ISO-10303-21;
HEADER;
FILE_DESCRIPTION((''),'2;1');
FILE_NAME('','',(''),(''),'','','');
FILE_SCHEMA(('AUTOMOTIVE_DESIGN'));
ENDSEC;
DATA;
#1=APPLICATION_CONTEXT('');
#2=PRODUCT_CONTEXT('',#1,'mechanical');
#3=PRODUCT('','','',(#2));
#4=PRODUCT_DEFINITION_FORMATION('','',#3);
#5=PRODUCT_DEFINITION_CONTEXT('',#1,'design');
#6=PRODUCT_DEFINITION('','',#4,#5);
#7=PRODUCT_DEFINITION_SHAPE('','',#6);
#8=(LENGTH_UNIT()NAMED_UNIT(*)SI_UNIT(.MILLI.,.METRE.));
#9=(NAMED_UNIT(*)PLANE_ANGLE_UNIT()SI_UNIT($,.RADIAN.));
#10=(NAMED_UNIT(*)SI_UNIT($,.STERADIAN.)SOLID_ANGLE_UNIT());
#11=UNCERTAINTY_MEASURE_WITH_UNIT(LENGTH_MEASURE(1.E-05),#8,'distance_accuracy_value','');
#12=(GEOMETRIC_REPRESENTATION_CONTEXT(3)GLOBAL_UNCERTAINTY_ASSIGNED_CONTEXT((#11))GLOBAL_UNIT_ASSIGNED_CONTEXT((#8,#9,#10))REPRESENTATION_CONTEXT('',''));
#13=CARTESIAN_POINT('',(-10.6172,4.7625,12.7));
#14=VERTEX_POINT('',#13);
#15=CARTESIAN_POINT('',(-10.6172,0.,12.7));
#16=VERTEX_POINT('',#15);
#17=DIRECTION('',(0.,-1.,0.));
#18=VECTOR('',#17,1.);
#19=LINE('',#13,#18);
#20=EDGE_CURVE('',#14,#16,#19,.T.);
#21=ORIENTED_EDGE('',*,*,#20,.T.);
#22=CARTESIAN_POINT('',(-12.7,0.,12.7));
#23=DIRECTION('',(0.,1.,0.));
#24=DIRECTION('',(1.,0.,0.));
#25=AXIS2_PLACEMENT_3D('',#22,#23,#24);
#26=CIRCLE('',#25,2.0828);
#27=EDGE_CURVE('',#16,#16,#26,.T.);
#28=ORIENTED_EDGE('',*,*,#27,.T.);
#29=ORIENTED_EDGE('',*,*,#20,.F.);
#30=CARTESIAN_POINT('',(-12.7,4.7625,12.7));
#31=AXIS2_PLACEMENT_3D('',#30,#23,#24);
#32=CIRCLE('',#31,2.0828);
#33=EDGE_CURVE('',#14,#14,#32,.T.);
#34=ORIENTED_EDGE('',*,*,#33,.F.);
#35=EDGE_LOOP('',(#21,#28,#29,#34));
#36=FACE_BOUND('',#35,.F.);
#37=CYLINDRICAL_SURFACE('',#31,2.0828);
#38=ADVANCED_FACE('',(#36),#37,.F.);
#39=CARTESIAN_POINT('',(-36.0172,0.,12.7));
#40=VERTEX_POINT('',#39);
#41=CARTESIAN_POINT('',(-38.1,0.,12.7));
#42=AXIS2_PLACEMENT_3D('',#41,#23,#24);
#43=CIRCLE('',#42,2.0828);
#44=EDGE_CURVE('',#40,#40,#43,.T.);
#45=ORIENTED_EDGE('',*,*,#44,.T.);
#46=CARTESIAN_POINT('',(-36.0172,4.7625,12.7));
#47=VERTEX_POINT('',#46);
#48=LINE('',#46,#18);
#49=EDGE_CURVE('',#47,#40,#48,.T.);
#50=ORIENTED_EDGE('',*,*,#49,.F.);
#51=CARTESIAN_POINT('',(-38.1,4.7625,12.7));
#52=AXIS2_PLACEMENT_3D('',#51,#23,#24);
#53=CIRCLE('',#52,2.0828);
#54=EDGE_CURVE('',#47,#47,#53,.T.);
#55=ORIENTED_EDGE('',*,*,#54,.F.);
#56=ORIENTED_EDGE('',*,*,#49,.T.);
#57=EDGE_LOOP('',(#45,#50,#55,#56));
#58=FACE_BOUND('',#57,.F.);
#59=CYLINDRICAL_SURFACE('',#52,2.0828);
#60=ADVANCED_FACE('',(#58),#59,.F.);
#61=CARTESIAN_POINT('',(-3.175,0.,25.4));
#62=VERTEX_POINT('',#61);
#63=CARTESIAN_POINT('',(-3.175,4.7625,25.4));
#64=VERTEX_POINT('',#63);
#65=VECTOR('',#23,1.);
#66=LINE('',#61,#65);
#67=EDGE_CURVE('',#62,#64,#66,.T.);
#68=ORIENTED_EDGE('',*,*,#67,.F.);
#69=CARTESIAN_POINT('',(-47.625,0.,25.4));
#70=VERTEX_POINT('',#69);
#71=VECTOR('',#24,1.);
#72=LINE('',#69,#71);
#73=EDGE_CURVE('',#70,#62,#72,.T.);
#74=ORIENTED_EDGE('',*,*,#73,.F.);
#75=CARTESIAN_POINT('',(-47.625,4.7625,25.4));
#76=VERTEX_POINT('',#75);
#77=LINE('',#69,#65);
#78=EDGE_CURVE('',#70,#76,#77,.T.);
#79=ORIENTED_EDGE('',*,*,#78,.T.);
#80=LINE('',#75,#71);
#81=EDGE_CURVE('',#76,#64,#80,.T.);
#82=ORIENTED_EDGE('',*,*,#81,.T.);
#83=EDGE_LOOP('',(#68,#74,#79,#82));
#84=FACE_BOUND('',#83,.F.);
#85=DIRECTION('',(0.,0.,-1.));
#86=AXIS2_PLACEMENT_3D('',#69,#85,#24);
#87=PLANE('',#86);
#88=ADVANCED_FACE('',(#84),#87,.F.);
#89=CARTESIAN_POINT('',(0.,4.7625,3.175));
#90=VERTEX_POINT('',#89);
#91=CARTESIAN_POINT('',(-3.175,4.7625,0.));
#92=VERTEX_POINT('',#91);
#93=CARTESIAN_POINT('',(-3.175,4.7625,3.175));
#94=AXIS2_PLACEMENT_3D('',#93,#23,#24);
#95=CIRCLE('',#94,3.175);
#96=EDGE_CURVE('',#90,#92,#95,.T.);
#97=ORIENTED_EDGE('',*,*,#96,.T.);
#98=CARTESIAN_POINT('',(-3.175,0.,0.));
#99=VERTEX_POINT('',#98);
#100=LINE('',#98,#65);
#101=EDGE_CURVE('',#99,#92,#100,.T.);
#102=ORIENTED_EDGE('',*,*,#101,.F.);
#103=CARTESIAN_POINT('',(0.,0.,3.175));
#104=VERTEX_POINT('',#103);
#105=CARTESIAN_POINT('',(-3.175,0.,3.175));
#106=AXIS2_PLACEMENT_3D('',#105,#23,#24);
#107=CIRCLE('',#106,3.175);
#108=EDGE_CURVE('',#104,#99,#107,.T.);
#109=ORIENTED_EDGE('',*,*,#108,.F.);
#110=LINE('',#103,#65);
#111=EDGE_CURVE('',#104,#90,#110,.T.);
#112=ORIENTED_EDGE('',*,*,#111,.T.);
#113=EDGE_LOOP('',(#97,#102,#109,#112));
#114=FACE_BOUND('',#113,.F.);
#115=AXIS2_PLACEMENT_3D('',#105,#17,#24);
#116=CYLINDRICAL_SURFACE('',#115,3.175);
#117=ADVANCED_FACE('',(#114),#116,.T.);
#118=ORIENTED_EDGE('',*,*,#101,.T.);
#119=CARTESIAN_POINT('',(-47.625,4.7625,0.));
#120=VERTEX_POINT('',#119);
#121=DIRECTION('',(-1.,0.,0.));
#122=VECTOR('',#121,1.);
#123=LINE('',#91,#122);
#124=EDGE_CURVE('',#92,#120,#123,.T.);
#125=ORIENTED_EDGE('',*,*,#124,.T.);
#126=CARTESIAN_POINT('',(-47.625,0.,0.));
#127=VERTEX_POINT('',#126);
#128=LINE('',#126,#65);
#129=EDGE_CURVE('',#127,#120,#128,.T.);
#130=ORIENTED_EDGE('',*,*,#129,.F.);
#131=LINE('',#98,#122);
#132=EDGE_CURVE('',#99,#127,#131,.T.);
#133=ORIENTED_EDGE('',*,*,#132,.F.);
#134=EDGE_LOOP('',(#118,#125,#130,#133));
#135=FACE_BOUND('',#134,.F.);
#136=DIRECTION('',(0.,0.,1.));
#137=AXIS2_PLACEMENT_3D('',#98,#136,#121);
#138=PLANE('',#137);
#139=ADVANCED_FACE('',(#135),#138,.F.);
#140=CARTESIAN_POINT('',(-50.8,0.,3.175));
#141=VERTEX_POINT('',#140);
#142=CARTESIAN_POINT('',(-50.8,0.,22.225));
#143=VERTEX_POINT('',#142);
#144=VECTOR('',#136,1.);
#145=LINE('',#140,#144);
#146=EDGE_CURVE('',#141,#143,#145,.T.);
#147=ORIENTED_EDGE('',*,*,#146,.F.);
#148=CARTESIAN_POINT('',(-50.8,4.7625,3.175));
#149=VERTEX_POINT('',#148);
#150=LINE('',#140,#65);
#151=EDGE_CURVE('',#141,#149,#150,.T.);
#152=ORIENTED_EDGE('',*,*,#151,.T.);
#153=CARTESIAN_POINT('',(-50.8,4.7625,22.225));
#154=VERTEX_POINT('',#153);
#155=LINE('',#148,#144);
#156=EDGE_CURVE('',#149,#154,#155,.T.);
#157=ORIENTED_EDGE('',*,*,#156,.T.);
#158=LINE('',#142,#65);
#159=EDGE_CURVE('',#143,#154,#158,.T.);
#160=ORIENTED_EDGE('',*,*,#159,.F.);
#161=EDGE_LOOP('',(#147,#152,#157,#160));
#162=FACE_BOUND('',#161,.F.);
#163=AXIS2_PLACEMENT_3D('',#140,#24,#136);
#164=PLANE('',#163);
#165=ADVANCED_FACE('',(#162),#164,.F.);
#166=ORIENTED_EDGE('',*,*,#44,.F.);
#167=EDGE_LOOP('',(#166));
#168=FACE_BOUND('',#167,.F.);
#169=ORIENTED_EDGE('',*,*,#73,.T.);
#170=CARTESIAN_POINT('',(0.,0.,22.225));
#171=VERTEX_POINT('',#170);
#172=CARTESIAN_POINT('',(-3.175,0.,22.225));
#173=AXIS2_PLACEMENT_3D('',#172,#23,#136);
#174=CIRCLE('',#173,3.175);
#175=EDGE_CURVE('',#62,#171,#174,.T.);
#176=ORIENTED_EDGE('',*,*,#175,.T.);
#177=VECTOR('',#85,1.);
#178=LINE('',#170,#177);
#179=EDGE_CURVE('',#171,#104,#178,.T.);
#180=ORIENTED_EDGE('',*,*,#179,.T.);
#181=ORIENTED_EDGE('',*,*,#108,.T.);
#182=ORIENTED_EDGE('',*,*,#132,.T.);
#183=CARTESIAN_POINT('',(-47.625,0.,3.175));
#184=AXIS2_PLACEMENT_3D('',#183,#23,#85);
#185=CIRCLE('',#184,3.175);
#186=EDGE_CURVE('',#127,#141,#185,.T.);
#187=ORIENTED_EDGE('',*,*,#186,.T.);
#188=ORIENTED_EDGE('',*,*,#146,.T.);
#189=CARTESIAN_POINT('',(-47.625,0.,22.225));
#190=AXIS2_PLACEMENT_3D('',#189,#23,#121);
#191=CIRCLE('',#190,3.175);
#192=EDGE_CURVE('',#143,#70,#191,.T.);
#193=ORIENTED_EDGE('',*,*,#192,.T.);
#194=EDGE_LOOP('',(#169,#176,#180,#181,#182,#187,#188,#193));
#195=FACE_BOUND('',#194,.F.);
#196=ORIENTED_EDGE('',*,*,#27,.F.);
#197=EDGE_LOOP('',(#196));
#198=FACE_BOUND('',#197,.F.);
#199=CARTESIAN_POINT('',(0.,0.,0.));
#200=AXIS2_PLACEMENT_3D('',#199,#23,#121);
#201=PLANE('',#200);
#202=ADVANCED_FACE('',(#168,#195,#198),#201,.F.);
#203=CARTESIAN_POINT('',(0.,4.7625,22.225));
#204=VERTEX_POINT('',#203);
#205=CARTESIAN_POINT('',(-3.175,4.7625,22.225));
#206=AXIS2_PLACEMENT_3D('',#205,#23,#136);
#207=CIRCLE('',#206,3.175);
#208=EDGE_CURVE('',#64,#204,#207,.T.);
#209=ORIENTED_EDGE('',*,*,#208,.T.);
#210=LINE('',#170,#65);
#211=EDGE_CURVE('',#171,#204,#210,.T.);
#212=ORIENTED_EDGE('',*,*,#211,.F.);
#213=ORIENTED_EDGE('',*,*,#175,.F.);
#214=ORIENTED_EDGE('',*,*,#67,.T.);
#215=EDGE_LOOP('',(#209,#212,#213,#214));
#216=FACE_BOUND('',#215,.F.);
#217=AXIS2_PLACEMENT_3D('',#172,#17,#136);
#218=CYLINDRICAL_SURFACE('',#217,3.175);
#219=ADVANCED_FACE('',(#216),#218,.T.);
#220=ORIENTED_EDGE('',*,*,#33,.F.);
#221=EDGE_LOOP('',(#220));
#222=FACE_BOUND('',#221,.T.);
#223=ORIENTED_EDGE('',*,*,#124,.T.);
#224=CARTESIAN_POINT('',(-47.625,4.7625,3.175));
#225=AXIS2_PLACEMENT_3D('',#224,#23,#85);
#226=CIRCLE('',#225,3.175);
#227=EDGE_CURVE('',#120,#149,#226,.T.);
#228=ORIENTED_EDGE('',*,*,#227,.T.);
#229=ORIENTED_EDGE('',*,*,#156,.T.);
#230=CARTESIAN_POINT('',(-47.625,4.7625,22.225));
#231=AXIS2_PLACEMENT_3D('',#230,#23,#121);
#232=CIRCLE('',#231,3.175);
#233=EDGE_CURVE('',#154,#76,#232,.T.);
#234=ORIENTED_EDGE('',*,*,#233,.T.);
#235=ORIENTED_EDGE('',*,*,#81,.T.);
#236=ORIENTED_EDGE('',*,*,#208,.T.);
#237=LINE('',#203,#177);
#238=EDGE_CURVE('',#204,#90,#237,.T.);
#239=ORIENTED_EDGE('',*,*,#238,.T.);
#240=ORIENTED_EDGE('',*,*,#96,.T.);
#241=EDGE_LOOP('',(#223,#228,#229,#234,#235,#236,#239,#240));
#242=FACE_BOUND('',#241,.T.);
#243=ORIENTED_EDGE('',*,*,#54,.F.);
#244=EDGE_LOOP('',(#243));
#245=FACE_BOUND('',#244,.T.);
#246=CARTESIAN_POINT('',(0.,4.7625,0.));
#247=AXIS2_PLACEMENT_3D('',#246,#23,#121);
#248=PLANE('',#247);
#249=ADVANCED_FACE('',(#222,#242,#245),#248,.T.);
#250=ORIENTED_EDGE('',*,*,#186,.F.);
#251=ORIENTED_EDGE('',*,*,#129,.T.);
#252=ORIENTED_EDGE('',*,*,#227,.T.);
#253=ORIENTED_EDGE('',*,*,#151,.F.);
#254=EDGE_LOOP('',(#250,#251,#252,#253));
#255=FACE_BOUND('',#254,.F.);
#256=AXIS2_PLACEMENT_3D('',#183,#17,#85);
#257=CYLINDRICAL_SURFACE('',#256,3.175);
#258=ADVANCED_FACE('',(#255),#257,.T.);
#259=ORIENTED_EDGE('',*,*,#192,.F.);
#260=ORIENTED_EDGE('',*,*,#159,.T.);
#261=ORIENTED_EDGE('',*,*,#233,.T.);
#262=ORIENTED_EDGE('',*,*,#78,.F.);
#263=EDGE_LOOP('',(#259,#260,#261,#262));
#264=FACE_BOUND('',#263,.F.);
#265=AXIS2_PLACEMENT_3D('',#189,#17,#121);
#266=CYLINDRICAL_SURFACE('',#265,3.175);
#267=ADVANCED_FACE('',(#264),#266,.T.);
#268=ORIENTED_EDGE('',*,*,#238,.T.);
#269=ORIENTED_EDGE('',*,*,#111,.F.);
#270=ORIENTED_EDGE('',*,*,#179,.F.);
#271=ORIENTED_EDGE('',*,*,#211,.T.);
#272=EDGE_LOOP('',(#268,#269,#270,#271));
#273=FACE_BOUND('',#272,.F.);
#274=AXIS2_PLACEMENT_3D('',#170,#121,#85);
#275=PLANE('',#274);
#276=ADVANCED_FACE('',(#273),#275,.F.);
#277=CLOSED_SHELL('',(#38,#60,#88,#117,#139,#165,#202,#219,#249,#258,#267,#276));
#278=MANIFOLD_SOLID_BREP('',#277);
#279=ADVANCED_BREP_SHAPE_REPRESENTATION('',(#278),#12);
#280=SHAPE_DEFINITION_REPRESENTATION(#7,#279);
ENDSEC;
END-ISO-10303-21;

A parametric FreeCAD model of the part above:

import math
import FreeCAD as App
import Part
import Sketcher
Q = App.Units.Quantity

doc = App.newDocument("Part")
body = doc.addObject("PartDesign::Body", "Body")

# Sketch on XZ plane
sketch1 = doc.addObject("Sketcher::SketchObject", "Sketch")
body.addObject(sketch1)
sketch1.AttachmentSupport = (doc.XZ_Plane, [""])
sketch1.MapMode = "FlatFace"
sketch1.addGeometry([
    Part.ArcOfCircle(Part.Circle(App.Vector(-3.2, 3.2, 0), App.Vector(0, 0, 1), 3.2), math.radians(-90), math.radians(0)),  # 0
    Part.LineSegment(App.Vector(-3.2, 0, 0), App.Vector(-47.6, 0, 0)),  # 1
    Part.ArcOfCircle(Part.Circle(App.Vector(-47.6, 3.2, 0), App.Vector(0, 0, 1), 3.2), math.radians(180), math.radians(270)),  # 2
    Part.LineSegment(App.Vector(-50.8, 3.2, 0), App.Vector(-50.8, 22.2, 0)),  # 3
    Part.ArcOfCircle(Part.Circle(App.Vector(-47.6, 22.2, 0), App.Vector(0, 0, 1), 3.2), math.radians(90), math.radians(180)),  # 4
    Part.LineSegment(App.Vector(-47.6, 25.4, 0), App.Vector(-3.2, 25.4, 0)),  # 5
    Part.ArcOfCircle(Part.Circle(App.Vector(-3.2, 22.2, 0), App.Vector(0, 0, 1), 3.2), math.radians(0), math.radians(90)),  # 6
    Part.LineSegment(App.Vector(0, 22.2, 0), App.Vector(0, 3.2, 0)),  # 7
], False)
sketch1.addConstraint([
    Sketcher.Constraint("Tangent", 0, 1, 1, 1),
    Sketcher.Constraint("Tangent", 1, 2, 2, 2),
    Sketcher.Constraint("Tangent", 2, 1, 3, 1),
    Sketcher.Constraint("Tangent", 3, 2, 4, 2),
    Sketcher.Constraint("Tangent", 4, 1, 5, 1),
    Sketcher.Constraint("Tangent", 5, 2, 6, 2),
    Sketcher.Constraint("Tangent", 6, 1, 7, 1),
    Sketcher.Constraint("Tangent", 7, 2, 0, 2),
    Sketcher.Constraint("Horizontal", 1),
    Sketcher.Constraint("Vertical", 3),
    Sketcher.Constraint("Horizontal", 5),
    Sketcher.Constraint("Vertical", 7),
    Sketcher.Constraint("Equal", 0, 2),
    Sketcher.Constraint("Equal", 2, 4),
    Sketcher.Constraint("Equal", 4, 6),
    Sketcher.Constraint("PointOnObject", 0, 1, -1),
    Sketcher.Constraint("PointOnObject", 6, 1, -2),
    Sketcher.Constraint("DistanceX", 2, 1, -1, 1, Q("2 in")),
    Sketcher.Constraint("DistanceY", -1, 1, 4, 1, Q("1 in")),
    Sketcher.Constraint("Radius", 0, Q("0.125 in")),
])
pad1 = doc.addObject("PartDesign::Pad", "Pad")
body.addObject(pad1)
pad1.Profile = sketch1
pad1.Length = Q("0.1875 in")
pad1.Reversed = True

# Sketch on XZ plane
sketch2 = doc.addObject("Sketcher::SketchObject", "Sketch001")
body.addObject(sketch2)
sketch2.AttachmentSupport = (doc.XZ_Plane, [""])
sketch2.MapMode = "FlatFace"
sketch2.AttachmentOffset = App.Placement(App.Vector(0, 0, -0.1875 * 25.4), App.Rotation())
sketch2.addGeometry([
    Part.Circle(App.Vector(-38.1, 12.7, 0), App.Vector(0, 0, 1), 2.1),
    Part.Circle(App.Vector(-12.7, 12.7, 0), App.Vector(0, 0, 1), 2.1),
], False)
sketch2.addConstraint([
    Sketcher.Constraint("Equal", 0, 1),
    Sketcher.Constraint("Horizontal", 0, 3, 1, 3),
    Sketcher.Constraint("Diameter", 0, Q("0.164 in")),
    Sketcher.Constraint("DistanceX", 0, 3, 1, 3, Q("1 in")),
    Sketcher.Constraint("DistanceY", -1, 1, 0, 3, Q("0.5 in")),
    Sketcher.Constraint("DistanceX", 1, 3, -1, 1, Q("0.5 in")),
])
pocket1 = doc.addObject("PartDesign::Pocket", "Pocket")
body.addObject(pocket1)
pocket1.Profile = sketch2
pocket1.Length = Q("0.1875 in")
pocket1.Reversed = True

doc.recompute()
